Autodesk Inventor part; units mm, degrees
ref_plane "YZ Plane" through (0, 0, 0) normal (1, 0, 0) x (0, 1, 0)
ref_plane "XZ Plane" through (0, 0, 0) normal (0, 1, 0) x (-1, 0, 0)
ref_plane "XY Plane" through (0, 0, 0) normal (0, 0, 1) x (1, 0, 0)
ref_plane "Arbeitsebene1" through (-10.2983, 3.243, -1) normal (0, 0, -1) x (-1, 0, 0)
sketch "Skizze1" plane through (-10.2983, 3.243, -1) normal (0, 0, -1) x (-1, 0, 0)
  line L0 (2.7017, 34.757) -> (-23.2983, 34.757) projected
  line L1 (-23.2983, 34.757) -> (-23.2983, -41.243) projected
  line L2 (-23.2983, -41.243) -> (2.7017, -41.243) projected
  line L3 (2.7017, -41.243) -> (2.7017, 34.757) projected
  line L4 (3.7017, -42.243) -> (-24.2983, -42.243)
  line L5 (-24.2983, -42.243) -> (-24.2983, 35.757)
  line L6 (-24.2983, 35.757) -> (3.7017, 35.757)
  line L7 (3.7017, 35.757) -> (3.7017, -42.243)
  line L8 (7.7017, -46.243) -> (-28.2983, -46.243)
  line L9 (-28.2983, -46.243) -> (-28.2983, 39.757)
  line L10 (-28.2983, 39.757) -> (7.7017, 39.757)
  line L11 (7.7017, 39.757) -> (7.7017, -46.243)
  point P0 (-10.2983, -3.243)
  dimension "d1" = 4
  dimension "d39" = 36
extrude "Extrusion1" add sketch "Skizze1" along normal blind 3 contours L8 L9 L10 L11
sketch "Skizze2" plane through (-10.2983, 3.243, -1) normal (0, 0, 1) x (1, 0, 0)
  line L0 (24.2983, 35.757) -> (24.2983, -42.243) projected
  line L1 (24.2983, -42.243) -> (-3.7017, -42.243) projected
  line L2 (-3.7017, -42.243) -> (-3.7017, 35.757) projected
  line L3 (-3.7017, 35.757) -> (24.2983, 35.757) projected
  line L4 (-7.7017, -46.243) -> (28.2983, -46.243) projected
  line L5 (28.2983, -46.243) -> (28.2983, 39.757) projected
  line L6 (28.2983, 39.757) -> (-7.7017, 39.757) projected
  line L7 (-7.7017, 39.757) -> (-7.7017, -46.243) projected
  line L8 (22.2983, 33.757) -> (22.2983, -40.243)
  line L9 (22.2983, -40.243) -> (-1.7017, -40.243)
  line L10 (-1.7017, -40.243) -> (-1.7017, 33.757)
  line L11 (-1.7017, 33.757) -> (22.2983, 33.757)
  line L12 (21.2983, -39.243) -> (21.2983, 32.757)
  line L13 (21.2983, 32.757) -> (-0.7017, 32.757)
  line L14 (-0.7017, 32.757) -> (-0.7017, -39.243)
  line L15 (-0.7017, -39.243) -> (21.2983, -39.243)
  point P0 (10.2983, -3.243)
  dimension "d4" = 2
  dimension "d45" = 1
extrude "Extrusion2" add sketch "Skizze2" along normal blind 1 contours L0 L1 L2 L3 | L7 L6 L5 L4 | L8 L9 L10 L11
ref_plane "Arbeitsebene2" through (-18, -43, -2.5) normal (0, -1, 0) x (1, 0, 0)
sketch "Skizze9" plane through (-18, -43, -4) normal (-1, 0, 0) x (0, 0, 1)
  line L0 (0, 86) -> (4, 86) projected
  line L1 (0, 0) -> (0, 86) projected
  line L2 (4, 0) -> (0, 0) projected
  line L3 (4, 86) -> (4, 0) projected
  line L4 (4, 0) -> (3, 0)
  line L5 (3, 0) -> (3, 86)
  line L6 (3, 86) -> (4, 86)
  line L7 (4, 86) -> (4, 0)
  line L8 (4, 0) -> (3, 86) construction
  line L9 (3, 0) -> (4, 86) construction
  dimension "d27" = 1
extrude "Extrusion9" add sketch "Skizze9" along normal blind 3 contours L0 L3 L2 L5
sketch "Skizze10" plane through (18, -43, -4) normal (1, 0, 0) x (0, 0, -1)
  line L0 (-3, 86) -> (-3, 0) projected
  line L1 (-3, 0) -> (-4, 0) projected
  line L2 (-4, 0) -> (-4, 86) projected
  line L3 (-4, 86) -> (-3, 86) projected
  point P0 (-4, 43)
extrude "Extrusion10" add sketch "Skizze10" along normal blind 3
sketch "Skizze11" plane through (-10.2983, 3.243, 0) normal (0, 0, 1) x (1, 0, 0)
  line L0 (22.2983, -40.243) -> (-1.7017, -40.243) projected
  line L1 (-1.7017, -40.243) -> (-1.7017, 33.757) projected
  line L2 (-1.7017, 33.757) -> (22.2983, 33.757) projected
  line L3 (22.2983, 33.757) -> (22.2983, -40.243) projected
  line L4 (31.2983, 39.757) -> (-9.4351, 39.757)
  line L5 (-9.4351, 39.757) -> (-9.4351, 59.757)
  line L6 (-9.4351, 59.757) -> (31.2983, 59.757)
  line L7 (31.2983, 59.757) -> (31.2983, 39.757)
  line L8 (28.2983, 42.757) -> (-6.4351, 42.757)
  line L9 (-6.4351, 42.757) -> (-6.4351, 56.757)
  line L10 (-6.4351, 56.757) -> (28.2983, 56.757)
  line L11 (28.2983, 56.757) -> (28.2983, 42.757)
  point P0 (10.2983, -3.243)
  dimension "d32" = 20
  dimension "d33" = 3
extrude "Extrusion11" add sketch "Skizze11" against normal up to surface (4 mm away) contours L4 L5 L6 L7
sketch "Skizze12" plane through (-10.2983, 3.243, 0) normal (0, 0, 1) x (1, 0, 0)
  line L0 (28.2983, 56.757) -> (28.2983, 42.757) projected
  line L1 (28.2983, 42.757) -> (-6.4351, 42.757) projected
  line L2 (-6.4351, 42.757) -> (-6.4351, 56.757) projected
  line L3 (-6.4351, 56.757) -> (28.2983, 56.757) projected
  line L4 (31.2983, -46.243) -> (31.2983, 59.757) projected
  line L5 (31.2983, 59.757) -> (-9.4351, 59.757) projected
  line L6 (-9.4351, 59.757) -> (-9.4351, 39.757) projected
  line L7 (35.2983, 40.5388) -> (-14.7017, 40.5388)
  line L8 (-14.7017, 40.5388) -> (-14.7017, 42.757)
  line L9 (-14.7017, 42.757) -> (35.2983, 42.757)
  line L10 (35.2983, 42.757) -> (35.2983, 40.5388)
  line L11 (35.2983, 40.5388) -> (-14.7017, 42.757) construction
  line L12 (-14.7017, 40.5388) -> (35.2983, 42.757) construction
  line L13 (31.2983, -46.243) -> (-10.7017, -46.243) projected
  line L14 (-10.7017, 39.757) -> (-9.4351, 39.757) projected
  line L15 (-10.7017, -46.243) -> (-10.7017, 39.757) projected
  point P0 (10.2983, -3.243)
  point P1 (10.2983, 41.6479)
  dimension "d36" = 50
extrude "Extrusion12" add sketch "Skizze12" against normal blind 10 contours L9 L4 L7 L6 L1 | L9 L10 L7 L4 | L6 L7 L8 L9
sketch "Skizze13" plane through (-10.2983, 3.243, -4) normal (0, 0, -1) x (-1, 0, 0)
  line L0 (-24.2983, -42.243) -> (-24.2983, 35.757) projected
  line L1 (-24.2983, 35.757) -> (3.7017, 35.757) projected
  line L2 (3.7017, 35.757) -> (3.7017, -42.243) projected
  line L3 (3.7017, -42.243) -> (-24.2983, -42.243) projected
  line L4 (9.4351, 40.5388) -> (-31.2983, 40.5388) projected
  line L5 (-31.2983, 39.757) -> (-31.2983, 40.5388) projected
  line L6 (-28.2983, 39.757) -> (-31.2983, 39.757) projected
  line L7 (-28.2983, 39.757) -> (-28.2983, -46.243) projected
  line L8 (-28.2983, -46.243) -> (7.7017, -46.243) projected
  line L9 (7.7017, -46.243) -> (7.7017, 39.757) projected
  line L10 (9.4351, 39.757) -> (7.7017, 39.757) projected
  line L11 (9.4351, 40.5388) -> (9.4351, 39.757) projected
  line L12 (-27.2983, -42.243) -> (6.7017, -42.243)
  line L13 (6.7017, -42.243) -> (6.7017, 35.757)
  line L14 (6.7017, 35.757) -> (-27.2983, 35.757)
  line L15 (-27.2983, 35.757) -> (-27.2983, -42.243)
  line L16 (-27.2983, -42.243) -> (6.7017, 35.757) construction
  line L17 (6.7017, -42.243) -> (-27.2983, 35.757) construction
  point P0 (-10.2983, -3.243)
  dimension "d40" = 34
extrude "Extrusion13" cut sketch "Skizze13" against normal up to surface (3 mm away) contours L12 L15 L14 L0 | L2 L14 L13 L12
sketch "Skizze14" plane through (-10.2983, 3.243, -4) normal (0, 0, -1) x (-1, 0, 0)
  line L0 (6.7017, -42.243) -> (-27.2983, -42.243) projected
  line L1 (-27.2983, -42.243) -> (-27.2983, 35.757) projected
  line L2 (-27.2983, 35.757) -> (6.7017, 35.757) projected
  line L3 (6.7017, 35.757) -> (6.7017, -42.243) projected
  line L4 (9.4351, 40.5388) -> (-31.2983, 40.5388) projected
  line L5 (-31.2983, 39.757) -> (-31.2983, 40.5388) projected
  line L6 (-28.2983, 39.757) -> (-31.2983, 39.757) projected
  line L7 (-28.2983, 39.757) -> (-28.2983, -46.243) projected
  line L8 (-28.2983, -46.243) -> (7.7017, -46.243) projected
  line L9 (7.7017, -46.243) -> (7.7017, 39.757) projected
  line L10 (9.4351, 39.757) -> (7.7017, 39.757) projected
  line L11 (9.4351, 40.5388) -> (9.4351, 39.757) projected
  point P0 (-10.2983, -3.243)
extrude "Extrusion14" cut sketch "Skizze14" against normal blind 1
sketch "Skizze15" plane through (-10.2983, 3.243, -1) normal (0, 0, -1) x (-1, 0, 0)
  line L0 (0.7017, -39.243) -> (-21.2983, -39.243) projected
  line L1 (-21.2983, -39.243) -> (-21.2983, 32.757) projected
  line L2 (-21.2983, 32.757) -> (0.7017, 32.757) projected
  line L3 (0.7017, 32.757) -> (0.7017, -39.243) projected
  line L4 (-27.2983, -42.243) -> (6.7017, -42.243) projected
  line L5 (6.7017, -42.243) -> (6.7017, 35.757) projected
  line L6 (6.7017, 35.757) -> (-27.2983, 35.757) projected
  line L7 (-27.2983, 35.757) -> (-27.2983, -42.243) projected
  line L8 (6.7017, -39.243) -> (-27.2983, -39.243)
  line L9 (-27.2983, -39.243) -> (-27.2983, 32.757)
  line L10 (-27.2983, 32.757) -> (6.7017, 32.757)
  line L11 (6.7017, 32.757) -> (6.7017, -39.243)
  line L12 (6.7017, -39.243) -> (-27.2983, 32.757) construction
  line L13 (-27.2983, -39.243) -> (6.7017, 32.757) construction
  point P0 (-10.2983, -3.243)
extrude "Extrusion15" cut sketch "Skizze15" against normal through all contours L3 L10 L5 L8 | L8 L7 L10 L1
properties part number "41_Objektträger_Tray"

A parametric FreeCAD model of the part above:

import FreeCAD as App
import Part
import Sketcher
from FreeCAD import Vector
Q = App.Units.Quantity


def add_polygon(sketch, points):
    """Adds a closed chain of lines whose ends are joined by coincident constraints."""
    first, n = sketch.GeometryCount, len(points)
    for a, b in zip(points, points[1:] + points[:1]):
        sketch.addGeometry(Part.LineSegment(App.Vector(*a, 0), App.Vector(*b, 0)), False)
    for i in range(n):
        sketch.addConstraint(Sketcher.Constraint("Coincident", first + i, 2, first + (i + 1) % n, 1))

doc = App.newDocument("Part")
body = doc.addObject("PartDesign::Body", "Body")

# Sketch on XY plane
sketch1 = body.newObject("Sketcher::SketchObject", "Sketch")
sketch1.AttachmentSupport = (doc.getObject("XY_Plane"), [""])
sketch1.MapMode = "FlatFace"
sketch1.AttachmentOffset = App.Placement(Vector(0, 0, -1), App.Rotation())
add_polygon(sketch1, [(18, -43), (-18, -43), (-18, 43), (18, 43)])  # lines 0-3
add_polygon(sketch1, [(-14, 39), (-14, -39), (14, -39), (14, 39)])  # lines 4-7
sketch1.addConstraint(Sketcher.Constraint("Horizontal", 0))
sketch1.addConstraint(Sketcher.Constraint("Vertical", 1))
sketch1.addConstraint(Sketcher.Constraint("Horizontal", 2))
sketch1.addConstraint(Sketcher.Constraint("Vertical", 3))
sketch1.addConstraint(Sketcher.Constraint("Vertical", 4))
sketch1.addConstraint(Sketcher.Constraint("Horizontal", 5))
sketch1.addConstraint(Sketcher.Constraint("Vertical", 6))
sketch1.addConstraint(Sketcher.Constraint("Horizontal", 7))
sketch1.addConstraint(Sketcher.Constraint("Symmetric", 0, 2, 2, 2, -1, 1))
sketch1.addConstraint(Sketcher.Constraint("Symmetric", 4, 2, 6, 2, -1, 1))
sketch1.addConstraint(Sketcher.Constraint("DistanceX", 0, 2, 0, 1, Q("36 mm")))
sketch1.addConstraint(Sketcher.Constraint("DistanceX", 0, 2, 4, 2, Q("4 mm")))
sketch1.addConstraint(Sketcher.Constraint("DistanceY", 0, 2, 4, 2, Q("4 mm")))
sketch1.addConstraint(Sketcher.Constraint("DistanceY", 1, 1, 1, 2, Q("86 mm")))
pad1 = body.newObject("PartDesign::Pad", "Pad")
pad1.Profile = sketch1
pad1.Length = 3
pad1.Reversed = True

# Sketch on XY plane
sketch2 = body.newObject("Sketcher::SketchObject", "Sketch001")
sketch2.AttachmentSupport = (doc.getObject("XY_Plane"), [""])
sketch2.MapMode = "FlatFace"
sketch2.AttachmentOffset = App.Placement(Vector(0, 0, -1), App.Rotation())
add_polygon(sketch2, [(-18, 43), (-18, -43), (18, -43), (18, 43)])  # lines 0-3
add_polygon(sketch2, [(11, 36), (11, -36), (-11, -36), (-11, 36)])  # lines 4-7
sketch2.addConstraint(Sketcher.Constraint("Vertical", 0))
sketch2.addConstraint(Sketcher.Constraint("Horizontal", 1))
sketch2.addConstraint(Sketcher.Constraint("Vertical", 2))
sketch2.addConstraint(Sketcher.Constraint("Horizontal", 3))
sketch2.addConstraint(Sketcher.Constraint("Vertical", 4))
sketch2.addConstraint(Sketcher.Constraint("Horizontal", 5))
sketch2.addConstraint(Sketcher.Constraint("Vertical", 6))
sketch2.addConstraint(Sketcher.Constraint("Horizontal", 7))
sketch2.addConstraint(Sketcher.Constraint("Symmetric", 0, 2, 2, 2, -1, 1))
sketch2.addConstraint(Sketcher.Constraint("Symmetric", 4, 2, 6, 2, -1, 1))
sketch2.addConstraint(Sketcher.Constraint("DistanceX", 1, 1, 1, 2, Q("36 mm")))
sketch2.addConstraint(Sketcher.Constraint("DistanceX", 5, 2, 5, 1, Q("22 mm")))
sketch2.addConstraint(Sketcher.Constraint("DistanceY", 0, 2, 0, 1, Q("86 mm")))
sketch2.addConstraint(Sketcher.Constraint("DistanceY", 4, 2, 4, 1, Q("72 mm")))
pad2 = body.newObject("PartDesign::Pad", "Pad001")
pad2.Profile = sketch2
pad2.Length = 1

# Sketch on YZ plane
sketch3 = body.newObject("Sketcher::SketchObject", "Sketch002")
sketch3.AttachmentSupport = (doc.getObject("YZ_Plane"), [""])
sketch3.MapMode = "FlatFace"
sketch3.AttachmentOffset = App.Placement(Vector(0, 0, -18), App.Rotation())
add_polygon(sketch3, [(43, 0), (43, -1), (-43, -1), (-43, 0)])  # lines 0-3
sketch3.addConstraint(Sketcher.Constraint("Vertical", 0))
sketch3.addConstraint(Sketcher.Constraint("Horizontal", 1))
sketch3.addConstraint(Sketcher.Constraint("Vertical", 2))
sketch3.addConstraint(Sketcher.Constraint("Horizontal", 3))
sketch3.addConstraint(Sketcher.Constraint("Symmetric", 2, 2, 3, 2, -1, 1))
sketch3.addConstraint(Sketcher.Constraint("DistanceY", 0, 2, 0, 1, Q("1 mm")))
sketch3.addConstraint(Sketcher.Constraint("DistanceX", 1, 2, 1, 1, Q("86 mm")))
pad3 = body.newObject("PartDesign::Pad", "Pad002")
pad3.Profile = sketch3
pad3.Length = 3
pad3.Reversed = True

# Sketch on YZ plane
sketch4 = body.newObject("Sketcher::SketchObject", "Sketch003")
sketch4.AttachmentSupport = (doc.getObject("YZ_Plane"), [""])
sketch4.MapMode = "FlatFace"
sketch4.AttachmentOffset = App.Placement(Vector(0, 0, 18), App.Rotation())
add_polygon(sketch4, [(-43, -1), (43, -1), (43, 0), (-43, 0)])  # lines 0-3
sketch4.addConstraint(Sketcher.Constraint("Horizontal", 0))
sketch4.addConstraint(Sketcher.Constraint("Vertical", 1))
sketch4.addConstraint(Sketcher.Constraint("Horizontal", 2))
sketch4.addConstraint(Sketcher.Constraint("Vertical", 3))
sketch4.addConstraint(Sketcher.Constraint("Symmetric", 1, 2, 2, 2, -1, 1))
sketch4.addConstraint(Sketcher.Constraint("DistanceX", 0, 1, 0, 2, Q("86 mm")))
sketch4.addConstraint(Sketcher.Constraint("DistanceY", 1, 1, 1, 2, Q("1 mm")))
pad4 = body.newObject("PartDesign::Pad", "Pad003")
pad4.Profile = sketch4
pad4.Length = 3

# Sketch on XY plane
sketch5 = body.newObject("Sketcher::SketchObject", "Sketch004")
sketch5.AttachmentSupport = (doc.getObject("XY_Plane"), [""])
sketch5.MapMode = "FlatFace"
add_polygon(sketch5, [(-19.7334, 43), (21, 43), (21, 63), (-19.7334, 63)])  # lines 0-3
add_polygon(sketch5, [(18, 60), (18, 46), (-16.7334, 46), (-16.7334, 60)])  # lines 4-7
sketch5.addConstraint(Sketcher.Constraint("Horizontal", 0))
sketch5.addConstraint(Sketcher.Constraint("Vertical", 1))
sketch5.addConstraint(Sketcher.Constraint("Horizontal", 2))
sketch5.addConstraint(Sketcher.Constraint("Vertical", 3))
sketch5.addConstraint(Sketcher.Constraint("Vertical", 4))
sketch5.addConstraint(Sketcher.Constraint("Horizontal", 5))
sketch5.addConstraint(Sketcher.Constraint("Vertical", 6))
sketch5.addConstraint(Sketcher.Constraint("Horizontal", 7))
sketch5.addConstraint(Sketcher.Constraint("DistanceY", 1, 1, 1, 2, Q("20 mm")))
sketch5.addConstraint(Sketcher.Constraint("DistanceX", 4, 2, 0, 2, Q("3 mm")))
sketch5.addConstraint(Sketcher.Constraint("DistanceY", 0, 2, 4, 2, Q("3 mm")))
sketch5.addConstraint(Sketcher.Constraint("DistanceX", 3, 2, 5, 2, Q("3 mm")))
sketch5.addConstraint(Sketcher.Constraint("DistanceY", 6, 2, 2, 2, Q("3 mm")))
sketch5.addConstraint(Sketcher.Constraint("DistanceX", -1, 1, 0, 2, Q("21 mm")))
sketch5.addConstraint(Sketcher.Constraint("DistanceY", -1, 1, 0, 2, Q("43 mm")))
sketch5.addConstraint(Sketcher.Constraint("DistanceX", 0, 1, 0, 2, Q("40.7334 mm")))
pad5 = body.newObject("PartDesign::Pad", "Pad004")
pad5.Profile = sketch5
pad5.Length = 4
pad5.Reversed = True

# Sketch on XY plane
sketch6 = body.newObject("Sketcher::SketchObject", "Sketch005")
sketch6.AttachmentSupport = (doc.getObject("XY_Plane"), [""])
sketch6.MapMode = "FlatFace"
add_polygon(sketch6, [(-25, 46), (-25, 43.7818), (25, 43.7818), (25, 46)])  # lines 0-3
sketch6.addConstraint(Sketcher.Constraint("Vertical", 0))
sketch6.addConstraint(Sketcher.Constraint("Horizontal", 1))
sketch6.addConstraint(Sketcher.Constraint("Vertical", 2))
sketch6.addConstraint(Sketcher.Constraint("Horizontal", 3))
sketch6.addConstraint(Sketcher.Constraint("DistanceX", 1, 1, 1, 2, Q("50 mm")))
sketch6.addConstraint(Sketcher.Constraint("DistanceX", 0, 2, -1, 1, Q("25 mm")))
sketch6.addConstraint(Sketcher.Constraint("DistanceY", -1, 1, 2, 2, Q("46 mm")))
sketch6.addConstraint(Sketcher.Constraint("DistanceY", 0, 2, 0, 1, Q("2.2182 mm")))
pad6 = body.newObject("PartDesign::Pad", "Pad005")
pad6.Profile = sketch6
pad6.Length = 10
pad6.Reversed = True

# Sketch on XY plane
sketch7 = body.newObject("Sketcher::SketchObject", "Sketch006")
sketch7.AttachmentSupport = (doc.getObject("XY_Plane"), [""])
sketch7.MapMode = "FlatFace"
sketch7.AttachmentOffset = App.Placement(Vector(0, 0, -4), App.Rotation())
add_polygon(sketch7, [(17, -39), (14, -39), (14, 39), (17, 39)])  # lines 0-3
add_polygon(sketch7, [(-14, 39), (-14, -39), (-17, -39), (-17, 39)])  # lines 4-7
sketch7.addConstraint(Sketcher.Constraint("Horizontal", 0))
sketch7.addConstraint(Sketcher.Constraint("Vertical", 1))
sketch7.addConstraint(Sketcher.Constraint("Horizontal", 2))
sketch7.addConstraint(Sketcher.Constraint("Vertical", 3))
sketch7.addConstraint(Sketcher.Constraint("Vertical", 4))
sketch7.addConstraint(Sketcher.Constraint("Horizontal", 5))
sketch7.addConstraint(Sketcher.Constraint("Vertical", 6))
sketch7.addConstraint(Sketcher.Constraint("Horizontal", 7))
sketch7.addConstraint(Sketcher.Constraint("Symmetric", 1, 2, 4, 2, -1, 1))
sketch7.addConstraint(Sketcher.Constraint("Symmetric", 3, 2, 6, 2, -1, 1))
sketch7.addConstraint(Sketcher.Constraint("Horizontal", 3, 2, 4, 2))
sketch7.addConstraint(Sketcher.Constraint("DistanceX", 5, 2, 3, 2, Q("34 mm")))
sketch7.addConstraint(Sketcher.Constraint("DistanceX", 0, 2, 0, 1, Q("3 mm")))
sketch7.addConstraint(Sketcher.Constraint("DistanceY", 1, 1, 1, 2, Q("78 mm")))
pocket1 = body.newObject("PartDesign::Pocket", "Pocket")
pocket1.Profile = sketch7
pocket1.Length = 3
pocket1.Reversed = True

# Sketch on XY plane
sketch8 = body.newObject("Sketcher::SketchObject", "Sketch007")
sketch8.AttachmentSupport = (doc.getObject("XY_Plane"), [""])
sketch8.MapMode = "FlatFace"
sketch8.AttachmentOffset = App.Placement(Vector(0, 0, -4), App.Rotation())
add_polygon(sketch8, [(-19.7334, 43), (-19.7334, 43.7818), (21, 43.7818), (21, 43), (18, 43), (18, -43), (-18, -43), (-18, 43)])  # lines 0-7
add_polygon(sketch8, [(-17, 39), (-17, -39), (17, -39), (17, 39)])  # lines 8-11
sketch8.addConstraint(Sketcher.Constraint("Vertical", 0))
sketch8.addConstraint(Sketcher.Constraint("Horizontal", 1))
sketch8.addConstraint(Sketcher.Constraint("Vertical", 2))
sketch8.addConstraint(Sketcher.Constraint("Horizontal", 3))
sketch8.addConstraint(Sketcher.Constraint("Vertical", 4))
sketch8.addConstraint(Sketcher.Constraint("Horizontal", 5))
sketch8.addConstraint(Sketcher.Constraint("Vertical", 6))
sketch8.addConstraint(Sketcher.Constraint("Horizontal", 7))
sketch8.addConstraint(Sketcher.Constraint("Vertical", 8))
sketch8.addConstraint(Sketcher.Constraint("Horizontal", 9))
sketch8.addConstraint(Sketcher.Constraint("Vertical", 10))
sketch8.addConstraint(Sketcher.Constraint("Horizontal", 11))
sketch8.addConstraint(Sketcher.Constraint("Symmetric", 3, 2, 5, 2, -1, 1))
sketch8.addConstraint(Sketcher.Constraint("Symmetric", 8, 2, 10, 2, -1, 1))
sketch8.addConstraint(Sketcher.Constraint("Horizontal", 3, 2, 6, 2))
sketch8.addConstraint(Sketcher.Constraint("DistanceX", 3, 2, 3, 1, Q("3 mm")))
sketch8.addConstraint(Sketcher.Constraint("DistanceX", 5, 2, 5, 1, Q("36 mm")))
sketch8.addConstraint(Sketcher.Constraint("DistanceX", 9, 1, 9, 2, Q("34 mm")))
sketch8.addConstraint(Sketcher.Constraint("DistanceY", 4, 2, 4, 1, Q("86 mm")))
sketch8.addConstraint(Sketcher.Constraint("DistanceY", 8, 2, 8, 1, Q("78 mm")))
sketch8.addConstraint(Sketcher.Constraint("DistanceX", 1, 1, 1, 2, Q("40.7334 mm")))
sketch8.addConstraint(Sketcher.Constraint("DistanceY", 0, 1, 0, 2, Q("0.7818 mm")))
pocket2 = body.newObject("PartDesign::Pocket", "Pocket001")
pocket2.Profile = sketch8
pocket2.Length = 1
pocket2.Reversed = True

# Sketch on XY plane
sketch9 = body.newObject("Sketcher::SketchObject", "Sketch008")
sketch9.AttachmentSupport = (doc.getObject("XY_Plane"), [""])
sketch9.MapMode = "FlatFace"
sketch9.AttachmentOffset = App.Placement(Vector(0, 0, -1), App.Rotation())
add_polygon(sketch9, [(-11, 36), (-11, -36), (-17, -36), (-17, 36)])  # lines 0-3
add_polygon(sketch9, [(17, -36), (11, -36), (11, 36), (17, 36)])  # lines 4-7
sketch9.addConstraint(Sketcher.Constraint("Vertical", 0))
sketch9.addConstraint(Sketcher.Constraint("Horizontal", 1))
sketch9.addConstraint(Sketcher.Constraint("Vertical", 2))
sketch9.addConstraint(Sketcher.Constraint("Horizontal", 3))
sketch9.addConstraint(Sketcher.Constraint("Horizontal", 4))
sketch9.addConstraint(Sketcher.Constraint("Vertical", 5))
sketch9.addConstraint(Sketcher.Constraint("Horizontal", 6))
sketch9.addConstraint(Sketcher.Constraint("Vertical", 7))
sketch9.addConstraint(Sketcher.Constraint("Symmetric", 3, 2, 4, 2, -1, 1))
sketch9.addConstraint(Sketcher.Constraint("Symmetric", 1, 2, 6, 2, -1, 1))
sketch9.addConstraint(Sketcher.Constraint("Horizontal", 1, 2, 4, 2))
sketch9.addConstraint(Sketcher.Constraint("DistanceX", 1, 2, 1, 1, Q("6 mm")))
sketch9.addConstraint(Sketcher.Constraint("DistanceY", 0, 2, 0, 1, Q("72 mm")))
sketch9.addConstraint(Sketcher.Constraint("DistanceX", 0, 2, -1, 1, Q("11 mm")))
pocket3 = body.newObject("PartDesign::Pocket", "Pocket002")
pocket3.Profile = sketch9
pocket3.Type = "ThroughAll"
pocket3.Reversed = True

doc.recompute()
